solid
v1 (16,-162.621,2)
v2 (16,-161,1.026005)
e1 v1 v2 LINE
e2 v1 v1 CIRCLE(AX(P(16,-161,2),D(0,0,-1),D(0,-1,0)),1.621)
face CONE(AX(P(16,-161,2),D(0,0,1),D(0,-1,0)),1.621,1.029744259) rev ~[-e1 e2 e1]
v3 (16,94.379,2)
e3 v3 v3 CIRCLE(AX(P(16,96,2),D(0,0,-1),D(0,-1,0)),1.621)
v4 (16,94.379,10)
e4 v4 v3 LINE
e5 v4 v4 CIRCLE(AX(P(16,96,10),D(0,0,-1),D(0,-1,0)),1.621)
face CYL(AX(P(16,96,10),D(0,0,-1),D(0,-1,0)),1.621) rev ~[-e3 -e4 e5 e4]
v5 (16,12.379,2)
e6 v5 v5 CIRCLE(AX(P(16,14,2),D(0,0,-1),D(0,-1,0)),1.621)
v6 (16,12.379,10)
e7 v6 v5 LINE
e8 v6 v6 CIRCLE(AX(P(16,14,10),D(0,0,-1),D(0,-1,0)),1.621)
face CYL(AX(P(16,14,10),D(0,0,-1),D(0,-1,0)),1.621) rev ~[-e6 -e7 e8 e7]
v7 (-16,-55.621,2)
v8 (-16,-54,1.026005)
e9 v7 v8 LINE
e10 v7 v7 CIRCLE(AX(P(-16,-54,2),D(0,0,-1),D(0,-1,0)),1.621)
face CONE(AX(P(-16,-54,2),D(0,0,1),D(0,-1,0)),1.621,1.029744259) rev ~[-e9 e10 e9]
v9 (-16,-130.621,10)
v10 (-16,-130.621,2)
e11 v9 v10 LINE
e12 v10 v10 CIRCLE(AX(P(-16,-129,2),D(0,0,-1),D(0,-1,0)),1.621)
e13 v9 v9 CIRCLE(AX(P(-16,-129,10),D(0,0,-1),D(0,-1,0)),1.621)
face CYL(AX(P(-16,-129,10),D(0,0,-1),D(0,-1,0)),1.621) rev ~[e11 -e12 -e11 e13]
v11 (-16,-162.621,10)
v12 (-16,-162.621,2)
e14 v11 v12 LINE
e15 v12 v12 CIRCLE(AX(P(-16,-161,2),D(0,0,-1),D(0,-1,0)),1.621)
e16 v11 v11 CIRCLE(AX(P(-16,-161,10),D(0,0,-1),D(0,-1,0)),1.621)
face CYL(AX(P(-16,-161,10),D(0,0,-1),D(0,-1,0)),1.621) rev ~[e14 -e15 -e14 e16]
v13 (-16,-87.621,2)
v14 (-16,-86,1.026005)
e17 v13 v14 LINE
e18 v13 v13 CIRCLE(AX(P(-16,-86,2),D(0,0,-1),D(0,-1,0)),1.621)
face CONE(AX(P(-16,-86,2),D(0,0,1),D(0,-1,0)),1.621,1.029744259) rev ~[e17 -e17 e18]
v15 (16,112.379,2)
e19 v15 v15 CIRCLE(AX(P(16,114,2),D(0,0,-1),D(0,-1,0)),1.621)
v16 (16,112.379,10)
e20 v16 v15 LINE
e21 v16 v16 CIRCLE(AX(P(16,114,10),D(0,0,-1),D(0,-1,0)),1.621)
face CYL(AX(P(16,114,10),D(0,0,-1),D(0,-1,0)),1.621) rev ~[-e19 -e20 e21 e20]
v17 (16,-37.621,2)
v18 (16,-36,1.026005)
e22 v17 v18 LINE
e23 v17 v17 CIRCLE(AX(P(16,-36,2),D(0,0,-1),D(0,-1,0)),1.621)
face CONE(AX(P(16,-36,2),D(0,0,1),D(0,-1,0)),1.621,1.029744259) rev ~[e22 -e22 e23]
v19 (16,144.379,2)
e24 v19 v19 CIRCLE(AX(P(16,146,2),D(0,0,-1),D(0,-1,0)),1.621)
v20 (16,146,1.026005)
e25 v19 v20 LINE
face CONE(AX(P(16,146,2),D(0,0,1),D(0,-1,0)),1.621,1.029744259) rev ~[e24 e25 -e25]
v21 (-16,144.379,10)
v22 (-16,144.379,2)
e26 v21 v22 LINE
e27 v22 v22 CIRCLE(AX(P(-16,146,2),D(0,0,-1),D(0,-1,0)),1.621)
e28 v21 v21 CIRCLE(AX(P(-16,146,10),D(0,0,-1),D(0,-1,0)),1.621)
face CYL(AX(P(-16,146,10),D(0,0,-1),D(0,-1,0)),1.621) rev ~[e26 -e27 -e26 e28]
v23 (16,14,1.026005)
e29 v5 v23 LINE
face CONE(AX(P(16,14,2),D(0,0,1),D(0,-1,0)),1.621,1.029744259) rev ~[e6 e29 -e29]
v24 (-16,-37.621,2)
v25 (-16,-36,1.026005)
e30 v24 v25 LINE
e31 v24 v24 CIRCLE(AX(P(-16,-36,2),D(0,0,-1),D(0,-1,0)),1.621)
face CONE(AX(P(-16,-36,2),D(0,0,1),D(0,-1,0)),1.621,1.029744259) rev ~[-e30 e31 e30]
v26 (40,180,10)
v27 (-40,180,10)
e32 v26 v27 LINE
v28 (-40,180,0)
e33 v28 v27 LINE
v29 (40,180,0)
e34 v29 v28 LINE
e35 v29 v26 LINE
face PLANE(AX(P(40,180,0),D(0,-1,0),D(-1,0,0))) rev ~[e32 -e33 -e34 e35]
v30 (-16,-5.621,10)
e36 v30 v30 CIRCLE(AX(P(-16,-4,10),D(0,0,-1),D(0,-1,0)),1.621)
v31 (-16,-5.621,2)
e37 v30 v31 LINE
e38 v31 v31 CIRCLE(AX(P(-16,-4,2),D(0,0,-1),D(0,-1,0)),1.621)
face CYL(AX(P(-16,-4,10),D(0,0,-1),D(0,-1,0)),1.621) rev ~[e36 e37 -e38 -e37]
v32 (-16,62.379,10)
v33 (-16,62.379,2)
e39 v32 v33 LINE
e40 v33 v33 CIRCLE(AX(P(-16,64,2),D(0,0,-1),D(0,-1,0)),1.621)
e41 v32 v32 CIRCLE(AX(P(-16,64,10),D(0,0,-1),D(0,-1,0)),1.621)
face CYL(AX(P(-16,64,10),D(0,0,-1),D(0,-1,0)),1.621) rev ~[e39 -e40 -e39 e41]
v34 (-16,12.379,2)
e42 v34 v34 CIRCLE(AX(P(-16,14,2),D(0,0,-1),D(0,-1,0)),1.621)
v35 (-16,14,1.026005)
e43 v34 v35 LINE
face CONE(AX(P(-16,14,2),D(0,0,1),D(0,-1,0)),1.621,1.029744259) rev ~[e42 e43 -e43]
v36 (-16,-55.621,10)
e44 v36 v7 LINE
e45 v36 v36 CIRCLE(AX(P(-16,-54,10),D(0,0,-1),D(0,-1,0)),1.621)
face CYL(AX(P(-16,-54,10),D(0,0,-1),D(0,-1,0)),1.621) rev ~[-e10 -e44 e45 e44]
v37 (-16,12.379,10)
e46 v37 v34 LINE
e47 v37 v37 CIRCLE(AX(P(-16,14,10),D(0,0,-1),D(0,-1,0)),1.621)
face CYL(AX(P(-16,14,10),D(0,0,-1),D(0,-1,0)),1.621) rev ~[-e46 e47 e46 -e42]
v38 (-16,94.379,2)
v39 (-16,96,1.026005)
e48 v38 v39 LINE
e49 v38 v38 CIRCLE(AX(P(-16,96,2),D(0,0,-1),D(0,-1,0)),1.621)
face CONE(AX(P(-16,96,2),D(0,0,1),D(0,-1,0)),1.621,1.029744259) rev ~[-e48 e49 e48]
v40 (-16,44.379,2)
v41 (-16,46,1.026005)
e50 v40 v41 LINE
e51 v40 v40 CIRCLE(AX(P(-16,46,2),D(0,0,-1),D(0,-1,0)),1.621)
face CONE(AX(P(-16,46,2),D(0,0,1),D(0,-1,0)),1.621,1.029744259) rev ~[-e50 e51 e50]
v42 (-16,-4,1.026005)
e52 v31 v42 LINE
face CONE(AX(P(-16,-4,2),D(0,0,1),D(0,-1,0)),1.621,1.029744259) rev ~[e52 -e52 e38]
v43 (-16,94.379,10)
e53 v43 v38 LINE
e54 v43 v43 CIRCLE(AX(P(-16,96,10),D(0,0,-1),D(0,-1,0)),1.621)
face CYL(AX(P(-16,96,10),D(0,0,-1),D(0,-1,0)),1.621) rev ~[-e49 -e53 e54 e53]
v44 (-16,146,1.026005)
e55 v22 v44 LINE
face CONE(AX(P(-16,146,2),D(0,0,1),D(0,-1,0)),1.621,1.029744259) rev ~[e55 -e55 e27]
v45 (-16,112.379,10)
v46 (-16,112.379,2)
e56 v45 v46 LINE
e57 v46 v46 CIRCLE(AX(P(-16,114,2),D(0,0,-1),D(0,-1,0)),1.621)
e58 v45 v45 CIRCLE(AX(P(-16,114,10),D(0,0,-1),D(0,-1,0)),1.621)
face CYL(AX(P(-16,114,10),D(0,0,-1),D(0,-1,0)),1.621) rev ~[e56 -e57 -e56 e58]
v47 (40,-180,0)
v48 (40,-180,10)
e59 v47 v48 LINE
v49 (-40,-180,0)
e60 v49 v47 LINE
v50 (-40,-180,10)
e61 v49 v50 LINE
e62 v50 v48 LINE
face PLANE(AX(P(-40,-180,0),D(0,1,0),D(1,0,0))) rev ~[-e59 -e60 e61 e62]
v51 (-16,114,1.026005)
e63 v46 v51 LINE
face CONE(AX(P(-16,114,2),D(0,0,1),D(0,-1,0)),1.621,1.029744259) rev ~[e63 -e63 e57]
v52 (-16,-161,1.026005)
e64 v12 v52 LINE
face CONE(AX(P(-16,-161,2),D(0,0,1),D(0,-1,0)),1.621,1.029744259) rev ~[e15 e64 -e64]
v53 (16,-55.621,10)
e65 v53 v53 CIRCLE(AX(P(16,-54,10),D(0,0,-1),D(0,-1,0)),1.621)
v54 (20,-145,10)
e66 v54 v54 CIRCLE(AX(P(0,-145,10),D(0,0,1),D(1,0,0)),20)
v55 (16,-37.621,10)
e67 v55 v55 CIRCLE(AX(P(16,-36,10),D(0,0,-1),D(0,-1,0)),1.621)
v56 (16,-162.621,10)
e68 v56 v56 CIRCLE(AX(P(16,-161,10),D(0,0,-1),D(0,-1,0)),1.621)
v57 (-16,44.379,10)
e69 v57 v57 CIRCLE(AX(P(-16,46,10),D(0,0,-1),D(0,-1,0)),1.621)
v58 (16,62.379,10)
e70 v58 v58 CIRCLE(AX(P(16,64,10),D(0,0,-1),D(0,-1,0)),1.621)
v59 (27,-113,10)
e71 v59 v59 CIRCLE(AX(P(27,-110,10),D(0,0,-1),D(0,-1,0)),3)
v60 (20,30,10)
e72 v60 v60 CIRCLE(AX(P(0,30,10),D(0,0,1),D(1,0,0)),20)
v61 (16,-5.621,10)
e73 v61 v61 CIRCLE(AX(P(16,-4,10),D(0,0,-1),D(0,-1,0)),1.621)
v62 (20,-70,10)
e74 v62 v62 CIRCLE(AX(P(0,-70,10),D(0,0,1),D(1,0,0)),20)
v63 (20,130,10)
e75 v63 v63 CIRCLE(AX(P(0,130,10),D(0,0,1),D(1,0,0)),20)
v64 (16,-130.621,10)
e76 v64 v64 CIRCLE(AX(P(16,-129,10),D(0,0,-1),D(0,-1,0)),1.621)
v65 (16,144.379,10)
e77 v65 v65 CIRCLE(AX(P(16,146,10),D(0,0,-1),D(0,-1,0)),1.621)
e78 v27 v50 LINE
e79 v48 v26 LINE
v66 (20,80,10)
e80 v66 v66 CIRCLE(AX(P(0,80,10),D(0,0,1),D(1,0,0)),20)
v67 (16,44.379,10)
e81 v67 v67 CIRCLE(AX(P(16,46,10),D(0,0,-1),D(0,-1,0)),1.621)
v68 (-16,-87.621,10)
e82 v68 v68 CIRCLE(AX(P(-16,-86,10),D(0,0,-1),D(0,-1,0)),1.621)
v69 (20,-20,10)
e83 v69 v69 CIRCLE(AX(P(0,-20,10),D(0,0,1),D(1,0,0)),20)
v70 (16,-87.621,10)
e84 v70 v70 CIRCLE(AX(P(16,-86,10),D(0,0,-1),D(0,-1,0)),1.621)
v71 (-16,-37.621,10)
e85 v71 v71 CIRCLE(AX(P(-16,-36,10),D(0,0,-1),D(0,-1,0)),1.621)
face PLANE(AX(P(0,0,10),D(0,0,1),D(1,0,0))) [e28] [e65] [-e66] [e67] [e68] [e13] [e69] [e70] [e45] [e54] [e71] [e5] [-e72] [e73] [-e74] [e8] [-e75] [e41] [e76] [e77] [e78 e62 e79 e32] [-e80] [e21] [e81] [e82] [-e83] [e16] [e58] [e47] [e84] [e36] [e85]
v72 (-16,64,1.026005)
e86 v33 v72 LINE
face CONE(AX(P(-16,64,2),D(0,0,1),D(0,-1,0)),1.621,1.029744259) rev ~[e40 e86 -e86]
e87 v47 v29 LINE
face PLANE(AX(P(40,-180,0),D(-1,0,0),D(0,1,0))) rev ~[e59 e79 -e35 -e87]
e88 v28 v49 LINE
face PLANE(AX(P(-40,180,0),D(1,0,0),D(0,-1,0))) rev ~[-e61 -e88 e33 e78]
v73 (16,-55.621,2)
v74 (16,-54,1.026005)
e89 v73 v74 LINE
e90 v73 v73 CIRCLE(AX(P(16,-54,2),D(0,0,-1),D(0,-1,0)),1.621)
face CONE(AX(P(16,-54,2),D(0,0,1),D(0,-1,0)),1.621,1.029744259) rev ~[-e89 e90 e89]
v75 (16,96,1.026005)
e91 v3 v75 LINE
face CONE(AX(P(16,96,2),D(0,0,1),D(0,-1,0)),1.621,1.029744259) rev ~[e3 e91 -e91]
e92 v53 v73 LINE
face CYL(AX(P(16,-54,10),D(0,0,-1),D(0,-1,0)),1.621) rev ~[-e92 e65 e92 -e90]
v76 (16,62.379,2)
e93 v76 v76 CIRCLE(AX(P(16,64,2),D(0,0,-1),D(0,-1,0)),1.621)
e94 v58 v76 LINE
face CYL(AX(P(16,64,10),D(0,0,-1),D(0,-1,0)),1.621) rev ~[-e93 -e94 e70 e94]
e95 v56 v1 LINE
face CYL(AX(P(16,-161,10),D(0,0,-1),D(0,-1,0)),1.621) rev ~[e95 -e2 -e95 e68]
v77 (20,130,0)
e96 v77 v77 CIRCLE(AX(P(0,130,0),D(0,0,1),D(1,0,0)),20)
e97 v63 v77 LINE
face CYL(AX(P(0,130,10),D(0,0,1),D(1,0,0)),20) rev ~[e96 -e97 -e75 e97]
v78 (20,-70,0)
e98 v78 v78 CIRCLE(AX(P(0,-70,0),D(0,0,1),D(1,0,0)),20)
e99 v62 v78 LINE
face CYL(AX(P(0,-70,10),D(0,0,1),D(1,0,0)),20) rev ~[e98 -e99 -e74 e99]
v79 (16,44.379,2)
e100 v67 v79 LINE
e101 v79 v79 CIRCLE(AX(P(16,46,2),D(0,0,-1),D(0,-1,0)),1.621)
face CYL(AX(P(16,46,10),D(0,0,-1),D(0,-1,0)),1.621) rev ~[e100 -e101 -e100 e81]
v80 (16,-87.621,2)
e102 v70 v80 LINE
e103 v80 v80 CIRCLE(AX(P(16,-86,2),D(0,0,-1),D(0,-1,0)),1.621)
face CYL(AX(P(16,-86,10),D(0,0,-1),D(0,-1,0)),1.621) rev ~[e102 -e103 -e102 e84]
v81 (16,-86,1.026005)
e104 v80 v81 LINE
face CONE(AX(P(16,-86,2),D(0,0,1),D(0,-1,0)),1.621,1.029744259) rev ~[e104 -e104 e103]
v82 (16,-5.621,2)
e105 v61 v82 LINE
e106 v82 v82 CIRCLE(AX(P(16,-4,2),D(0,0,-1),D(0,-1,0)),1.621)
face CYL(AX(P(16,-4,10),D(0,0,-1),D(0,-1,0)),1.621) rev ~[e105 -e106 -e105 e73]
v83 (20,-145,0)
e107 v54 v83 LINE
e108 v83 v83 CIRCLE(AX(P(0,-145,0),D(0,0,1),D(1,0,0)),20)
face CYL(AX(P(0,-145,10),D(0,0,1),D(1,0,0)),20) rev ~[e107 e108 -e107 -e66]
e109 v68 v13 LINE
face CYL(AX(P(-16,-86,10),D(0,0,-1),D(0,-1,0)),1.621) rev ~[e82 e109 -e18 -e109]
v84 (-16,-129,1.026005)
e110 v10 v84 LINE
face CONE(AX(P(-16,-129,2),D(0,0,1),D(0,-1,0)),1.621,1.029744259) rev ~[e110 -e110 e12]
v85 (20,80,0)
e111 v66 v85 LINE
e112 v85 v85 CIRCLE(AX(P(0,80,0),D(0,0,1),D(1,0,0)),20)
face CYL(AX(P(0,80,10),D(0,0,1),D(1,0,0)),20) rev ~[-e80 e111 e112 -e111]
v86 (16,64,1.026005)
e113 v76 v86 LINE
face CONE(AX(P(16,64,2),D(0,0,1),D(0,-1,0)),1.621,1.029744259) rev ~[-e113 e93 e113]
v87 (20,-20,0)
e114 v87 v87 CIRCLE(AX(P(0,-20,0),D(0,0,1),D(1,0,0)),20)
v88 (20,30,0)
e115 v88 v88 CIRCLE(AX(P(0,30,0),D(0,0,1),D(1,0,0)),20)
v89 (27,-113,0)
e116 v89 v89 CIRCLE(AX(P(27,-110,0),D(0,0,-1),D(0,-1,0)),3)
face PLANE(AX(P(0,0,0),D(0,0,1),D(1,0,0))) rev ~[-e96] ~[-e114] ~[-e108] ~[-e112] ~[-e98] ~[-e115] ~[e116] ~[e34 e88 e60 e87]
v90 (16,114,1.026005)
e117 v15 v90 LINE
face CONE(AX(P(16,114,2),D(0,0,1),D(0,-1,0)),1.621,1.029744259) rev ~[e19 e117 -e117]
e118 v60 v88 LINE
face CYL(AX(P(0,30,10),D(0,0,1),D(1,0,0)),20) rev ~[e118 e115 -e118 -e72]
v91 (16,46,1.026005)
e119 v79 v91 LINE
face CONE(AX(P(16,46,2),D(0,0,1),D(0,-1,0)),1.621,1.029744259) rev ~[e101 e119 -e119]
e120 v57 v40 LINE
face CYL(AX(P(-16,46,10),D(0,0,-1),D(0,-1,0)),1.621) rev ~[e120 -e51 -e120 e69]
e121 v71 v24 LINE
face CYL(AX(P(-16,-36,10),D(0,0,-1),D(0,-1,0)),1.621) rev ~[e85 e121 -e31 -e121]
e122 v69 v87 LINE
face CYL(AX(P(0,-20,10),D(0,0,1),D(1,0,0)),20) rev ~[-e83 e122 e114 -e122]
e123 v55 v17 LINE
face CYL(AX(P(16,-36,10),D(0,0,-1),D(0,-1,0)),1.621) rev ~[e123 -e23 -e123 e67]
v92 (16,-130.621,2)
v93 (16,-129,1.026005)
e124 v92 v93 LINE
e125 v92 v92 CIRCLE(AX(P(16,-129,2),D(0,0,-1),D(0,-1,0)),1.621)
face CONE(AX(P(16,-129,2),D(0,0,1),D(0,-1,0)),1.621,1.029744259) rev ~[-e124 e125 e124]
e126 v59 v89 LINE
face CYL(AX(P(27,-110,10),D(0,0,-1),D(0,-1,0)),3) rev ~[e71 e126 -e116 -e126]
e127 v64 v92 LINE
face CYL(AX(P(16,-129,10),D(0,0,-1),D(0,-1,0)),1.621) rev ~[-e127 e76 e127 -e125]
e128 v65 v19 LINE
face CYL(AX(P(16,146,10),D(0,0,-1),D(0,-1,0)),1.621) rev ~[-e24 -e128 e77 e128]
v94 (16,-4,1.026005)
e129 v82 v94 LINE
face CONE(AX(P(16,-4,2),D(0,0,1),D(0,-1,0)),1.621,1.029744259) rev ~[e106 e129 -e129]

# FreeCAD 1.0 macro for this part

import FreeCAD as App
import Part
import Sketcher

V = App.Vector


def add_polygon(sketch, points):
    """Adds a closed chain of lines whose ends are joined by coincident constraints."""
    first, n = sketch.GeometryCount, len(points)
    for a, b in zip(points, points[1:] + points[:1]):
        sketch.addGeometry(Part.LineSegment(App.Vector(*a, 0), App.Vector(*b, 0)), False)
    for i in range(n):
        sketch.addConstraint(Sketcher.Constraint("Coincident", first + i, 2, first + (i + 1) % n, 1))

doc = App.newDocument("Part")
body = doc.addObject("PartDesign::Body", "Body")

sketch1 = body.newObject("Sketcher::SketchObject", "Sketch")
sketch1.AttachmentSupport = (doc.getObject("XY_Plane"), [""])
sketch1.MapMode = "FlatFace"
add_polygon(sketch1, [(40, -180), (40, 180), (-40, 180), (-40, -180)])
sketch1.addConstraint([
    Sketcher.Constraint("Vertical", 0),
    Sketcher.Constraint("Horizontal", 1),
    Sketcher.Constraint("Vertical", 2),
    Sketcher.Constraint("Horizontal", 3),
    Sketcher.Constraint("Symmetric", 0, 2, 2, 2, -1, 1),
    Sketcher.Constraint("DistanceX", 1, 2, 1, 1, 80.0),
    Sketcher.Constraint("DistanceY", 0, 1, 0, 2, 360.0),
])
pad1 = body.newObject("PartDesign::Pad", "Pad")
pad1.Profile = sketch1
pad1.Length = 10

sketch2 = body.newObject("Sketcher::SketchObject", "Sketch001")
sketch2.AttachmentSupport = (doc.getObject("XY_Plane"), [""])
sketch2.MapMode = "FlatFace"
sketch2.AttachmentOffset = App.Placement(V(0, 0, 10), App.Rotation())
sketch2.addGeometry(Part.Circle(V(27, -110, 0), V(0, 0, 1), 3), False)
sketch2.addConstraint([
    Sketcher.Constraint("Diameter", 0, 6.0),
    Sketcher.Constraint("DistanceX", -1, 1, 0, 3, 27.0),
    Sketcher.Constraint("DistanceY", 0, 3, -1, 1, 110.0),
])
doc.recompute()
hole = body.newObject("PartDesign::Hole", "Hole")
hole.Profile = sketch2
hole.ThreadType = "None"
hole.Diameter = 6
hole.DepthType = "ThroughAll"

sketch3 = body.newObject("Sketcher::SketchObject", "Sketch002")
sketch3.AttachmentSupport = (doc.getObject("XY_Plane"), [""])
sketch3.MapMode = "FlatFace"
sketch3.AttachmentOffset = App.Placement(V(0, 0, 10), App.Rotation())
sketch3.addGeometry(Part.Circle(V(0, 130, 0), V(0, 0, 1), 20), False)
sketch3.addConstraint([
    Sketcher.Constraint("PointOnObject", 0, 3, -2),
    Sketcher.Constraint("Diameter", 0, 40.0),
    Sketcher.Constraint("DistanceY", -1, 1, 0, 3, 130.0),
])
pocket1 = body.newObject("PartDesign::Pocket", "Pocket")
pocket1.Profile = sketch3
pocket1.Length = 10

sketch4 = body.newObject("Sketcher::SketchObject", "Sketch003")
sketch4.AttachmentSupport = (doc.getObject("XY_Plane"), [""])
sketch4.MapMode = "FlatFace"
sketch4.AttachmentOffset = App.Placement(V(0, 0, 10), App.Rotation())
sketch4.addGeometry([
    Part.Circle(V(16, 114, 0), V(0, 0, 1), 1.6),
    Part.Circle(V(-16, 114, 0), V(0, 0, 1), 1.6),
    Part.Circle(V(-16, 146, 0), V(0, 0, 1), 1.6),
    Part.Circle(V(16, 146, 0), V(0, 0, 1), 1.6),
], False)
sketch4.addConstraint([
    Sketcher.Constraint("Equal", 0, 1),
    Sketcher.Constraint("Equal", 1, 2),
    Sketcher.Constraint("Equal", 2, 3),
    Sketcher.Constraint("Symmetric", 0, 3, 1, 3, -2),
    Sketcher.Constraint("Symmetric", 2, 3, 3, 3, -2),
    Sketcher.Constraint("Vertical", 1, 3, 2, 3),
    Sketcher.Constraint("Diameter", 0, 3.242),
    Sketcher.Constraint("DistanceX", -1, 1, 0, 3, 16.0),
    Sketcher.Constraint("DistanceY", -1, 1, 0, 3, 114.0),
    Sketcher.Constraint("DistanceY", -1, 1, 2, 3, 146.0),
])
doc.recompute()
hole2 = body.newObject("PartDesign::Hole", "Hole001")
hole2.Profile = sketch4
hole2.ThreadType = "None"
hole2.Diameter = 3.242
hole2.DepthType = "Dimension"
hole2.Depth = 8
hole2.DrillPoint = "Angled"
hole2.DrillPointAngle = 118
doc.recompute()

linearpattern = body.newObject("PartDesign::LinearPattern", "LinearPattern")
linearpattern.Originals = [pocket1, hole2]
linearpattern.Direction = (doc.getObject("Y_Axis"), [""])
linearpattern.Mode = "offset"
linearpattern.Offset = 50
linearpattern.Occurrences = 5
linearpattern.Reversed = True
body.Tip = linearpattern
doc.recompute()

linearpattern2 = body.newObject("PartDesign::LinearPattern", "LinearPattern001")
linearpattern2.Originals = [pocket1, hole2]
linearpattern2.Direction = (doc.getObject("Y_Axis"), [""])
linearpattern2.Mode = "offset"
linearpattern2.Offset = 275
linearpattern2.Occurrences = 2
linearpattern2.Reversed = True
body.Tip = linearpattern2

doc.recompute()
